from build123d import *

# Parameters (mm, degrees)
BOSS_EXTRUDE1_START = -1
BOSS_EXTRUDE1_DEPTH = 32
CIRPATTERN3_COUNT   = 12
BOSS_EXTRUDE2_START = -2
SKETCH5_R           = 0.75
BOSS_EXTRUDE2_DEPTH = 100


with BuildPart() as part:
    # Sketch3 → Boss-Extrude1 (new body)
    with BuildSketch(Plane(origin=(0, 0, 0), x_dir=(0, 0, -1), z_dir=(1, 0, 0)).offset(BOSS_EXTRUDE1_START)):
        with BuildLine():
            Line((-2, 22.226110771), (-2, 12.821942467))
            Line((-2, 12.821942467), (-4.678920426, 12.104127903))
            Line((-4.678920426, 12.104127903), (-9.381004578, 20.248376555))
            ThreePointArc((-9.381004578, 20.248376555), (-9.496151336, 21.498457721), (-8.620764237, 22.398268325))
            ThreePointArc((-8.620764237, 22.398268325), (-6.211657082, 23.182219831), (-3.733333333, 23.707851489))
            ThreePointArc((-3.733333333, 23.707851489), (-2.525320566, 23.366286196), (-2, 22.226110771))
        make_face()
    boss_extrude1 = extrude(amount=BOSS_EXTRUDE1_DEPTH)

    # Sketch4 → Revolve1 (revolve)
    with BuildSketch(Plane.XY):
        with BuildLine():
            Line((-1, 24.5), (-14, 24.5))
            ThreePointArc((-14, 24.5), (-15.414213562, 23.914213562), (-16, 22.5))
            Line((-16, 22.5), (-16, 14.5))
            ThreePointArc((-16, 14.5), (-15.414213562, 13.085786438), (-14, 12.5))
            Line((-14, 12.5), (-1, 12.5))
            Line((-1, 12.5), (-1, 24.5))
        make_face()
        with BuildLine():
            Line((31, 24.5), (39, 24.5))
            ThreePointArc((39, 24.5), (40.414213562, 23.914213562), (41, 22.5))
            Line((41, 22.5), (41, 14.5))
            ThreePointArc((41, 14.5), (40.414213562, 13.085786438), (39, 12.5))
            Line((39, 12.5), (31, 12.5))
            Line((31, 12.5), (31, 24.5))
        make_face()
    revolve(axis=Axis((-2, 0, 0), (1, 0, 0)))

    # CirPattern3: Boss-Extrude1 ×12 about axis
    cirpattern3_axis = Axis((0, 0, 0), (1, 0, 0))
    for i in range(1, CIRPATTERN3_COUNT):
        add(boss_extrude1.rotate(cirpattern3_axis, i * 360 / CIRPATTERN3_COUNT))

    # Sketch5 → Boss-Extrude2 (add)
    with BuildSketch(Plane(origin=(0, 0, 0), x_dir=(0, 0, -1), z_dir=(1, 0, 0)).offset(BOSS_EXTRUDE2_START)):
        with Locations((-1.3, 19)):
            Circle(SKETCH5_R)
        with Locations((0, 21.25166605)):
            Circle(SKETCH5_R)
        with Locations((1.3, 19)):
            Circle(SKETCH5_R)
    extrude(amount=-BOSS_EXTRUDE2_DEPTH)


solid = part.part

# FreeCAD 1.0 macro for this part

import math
import FreeCAD as App
import Part
import Sketcher
from FreeCAD import Vector
Q = App.Units.Quantity

doc = App.newDocument("Part")
body = doc.addObject("PartDesign::Body", "Body")

# Sketch on YZ plane
sketch1 = body.newObject("Sketcher::SketchObject", "Sketch")
sketch1.AttachmentSupport = (doc.getObject("YZ_Plane"), [""])
sketch1.MapMode = "FlatFace"
sketch1.AttachmentOffset = App.Placement(Vector(0, 0, -1), App.Rotation())
sketch1.addGeometry(Part.LineSegment(Vector(12.821942, 2, 0), Vector(22.226111, 2, 0)), False)
sketch1.addGeometry(Part.ArcOfCircle(Part.Circle(Vector(22.226111, 3.5, 0), Vector(0, 0, 1), 1.5), math.radians(-90), math.radians(8.949018)), False)
sketch1.addGeometry(Part.ArcOfCircle(Part.Circle(Vector(0, 0, 0), Vector(0, 0, 1), 24), math.radians(8.949018), math.radians(21.050982)), False)
sketch1.addGeometry(Part.ArcOfCircle(Part.Circle(Vector(20.998377, 8.081966, 0), Vector(0, 0, 1), 1.5), math.radians(21.050982), math.radians(120)), False)
sketch1.addGeometry(Part.LineSegment(Vector(20.248377, 9.381005, 0), Vector(12.104128, 4.67892, 0)), False)
sketch1.addGeometry(Part.LineSegment(Vector(12.104128, 4.67892, 0), Vector(12.821942, 2, 0)), False)
sketch1.addConstraint(Sketcher.Constraint("Tangent", 0, 2, 1, 1))
sketch1.addConstraint(Sketcher.Constraint("Tangent", 1, 2, 2, 1))
sketch1.addConstraint(Sketcher.Constraint("Tangent", 2, 2, 3, 1))
sketch1.addConstraint(Sketcher.Constraint("Tangent", 3, 2, 4, 1))
sketch1.addConstraint(Sketcher.Constraint("Coincident", 4, 2, 5, 1))
sketch1.addConstraint(Sketcher.Constraint("Coincident", 5, 2, 0, 1))
sketch1.addConstraint(Sketcher.Constraint("Horizontal", 0))
sketch1.addConstraint(Sketcher.Constraint("Coincident", 2, 3, -1, 1))
sketch1.addConstraint(Sketcher.Constraint("Equal", 1, 3))
sketch1.addConstraint(Sketcher.Constraint("Radius", 2, Q("24 mm")))
sketch1.addConstraint(Sketcher.Constraint("Radius", 1, Q("1.5 mm")))
sketch1.addConstraint(Sketcher.Constraint("Angle", 4, Q("-150 deg")))
sketch1.addConstraint(Sketcher.Constraint("Angle", 5, Q("-75 deg")))
sketch1.addConstraint(Sketcher.Constraint("DistanceY", -1, 1, 0, 2, Q("2 mm")))
sketch1.addConstraint(Sketcher.Constraint("DistanceX", 0, 1, 0, 2, Q("9.404168 mm")))
sketch1.addConstraint(Sketcher.Constraint("Distance", 4, Q("9.404168 mm")))
pad1 = body.newObject("PartDesign::Pad", "Pad")
pad1.Profile = sketch1
pad1.Length = 32

# Sketch on XY plane
sketch2 = body.newObject("Sketcher::SketchObject", "Sketch001")
sketch2.AttachmentSupport = (doc.getObject("XY_Plane"), [""])
sketch2.MapMode = "FlatFace"
sketch2.addGeometry(Part.LineSegment(Vector(-1, 24.5, 0), Vector(-14, 24.5, 0)), False)
sketch2.addGeometry(Part.ArcOfCircle(Part.Circle(Vector(-14, 22.5, 0), Vector(0, 0, 1), 2), math.radians(90), math.radians(180)), False)
sketch2.addGeometry(Part.LineSegment(Vector(-16, 22.5, 0), Vector(-16, 14.5, 0)), False)
sketch2.addGeometry(Part.ArcOfCircle(Part.Circle(Vector(-14, 14.5, 0), Vector(0, 0, 1), 2), math.radians(-180), math.radians(-90)), False)
sketch2.addGeometry(Part.LineSegment(Vector(-14, 12.5, 0), Vector(-1, 12.5, 0)), False)
sketch2.addGeometry(Part.LineSegment(Vector(-1, 12.5, 0), Vector(-1, 24.5, 0)), False)
sketch2.addGeometry(Part.LineSegment(Vector(39, 24.5, 0), Vector(31, 24.5, 0)), False)
sketch2.addGeometry(Part.LineSegment(Vector(31, 24.5, 0), Vector(31, 12.5, 0)), False)
sketch2.addGeometry(Part.LineSegment(Vector(31, 12.5, 0), Vector(39, 12.5, 0)), False)
sketch2.addGeometry(Part.ArcOfCircle(Part.Circle(Vector(39, 14.5, 0), Vector(0, 0, 1), 2), math.radians(-90), math.radians(0)), False)
sketch2.addGeometry(Part.LineSegment(Vector(41, 14.5, 0), Vector(41, 22.5, 0)), False)
sketch2.addGeometry(Part.ArcOfCircle(Part.Circle(Vector(39, 22.5, 0), Vector(0, 0, 1), 2), math.radians(0), math.radians(90)), False)
sketch2.addConstraint(Sketcher.Constraint("Tangent", 0, 2, 1, 1))
sketch2.addConstraint(Sketcher.Constraint("Tangent", 1, 2, 2, 1))
sketch2.addConstraint(Sketcher.Constraint("Tangent", 2, 2, 3, 1))
sketch2.addConstraint(Sketcher.Constraint("Tangent", 3, 2, 4, 1))
sketch2.addConstraint(Sketcher.Constraint("Coincident", 4, 2, 5, 1))
sketch2.addConstraint(Sketcher.Constraint("Coincident", 5, 2, 0, 1))
sketch2.addConstraint(Sketcher.Constraint("Coincident", 6, 2, 7, 1))
sketch2.addConstraint(Sketcher.Constraint("Coincident", 7, 2, 8, 1))
sketch2.addConstraint(Sketcher.Constraint("Tangent", 8, 2, 9, 1))
sketch2.addConstraint(Sketcher.Constraint("Tangent", 9, 2, 10, 1))
sketch2.addConstraint(Sketcher.Constraint("Tangent", 10, 2, 11, 1))
sketch2.addConstraint(Sketcher.Constraint("Tangent", 11, 2, 6, 1))
sketch2.addConstraint(Sketcher.Constraint("Horizontal", 0))
sketch2.addConstraint(Sketcher.Constraint("Vertical", 2))
sketch2.addConstraint(Sketcher.Constraint("Horizontal", 4))
sketch2.addConstraint(Sketcher.Constraint("Vertical", 5))
sketch2.addConstraint(Sketcher.Constraint("Horizontal", 6))
sketch2.addConstraint(Sketcher.Constraint("Vertical", 7))
sketch2.addConstraint(Sketcher.Constraint("Horizontal", 8))
sketch2.addConstraint(Sketcher.Constraint("Vertical", 10))
sketch2.addConstraint(Sketcher.Constraint("Equal", 1, 3))
sketch2.addConstraint(Sketcher.Constraint("Equal", 3, 9))
sketch2.addConstraint(Sketcher.Constraint("Equal", 9, 11))
sketch2.addConstraint(Sketcher.Constraint("Horizontal", 3, 3, 9, 3))
sketch2.addConstraint(Sketcher.Constraint("Horizontal", 1, 3, 11, 3))
sketch2.addConstraint(Sketcher.Constraint("Equal", 8, 2))
sketch2.addConstraint(Sketcher.Constraint("Radius", 1, Q("2 mm")))
sketch2.addConstraint(Sketcher.Constraint("DistanceX", 0, 2, 0, 1, Q("13 mm")))
sketch2.addConstraint(Sketcher.Constraint("DistanceX", 6, 2, 6, 1, Q("8 mm")))
sketch2.addConstraint(Sketcher.Constraint("DistanceX", 1, 3, -1, 1, Q("14 mm")))
sketch2.addConstraint(Sketcher.Constraint("DistanceX", -1, 1, 9, 3, Q("39 mm")))
sketch2.addConstraint(Sketcher.Constraint("DistanceY", -1, 1, 1, 3, Q("22.5 mm")))
revolution = body.newObject("PartDesign::Revolution", "Revolution")
revolution.Profile = sketch2
revolution.ReferenceAxis = (sketch2, ["H_Axis"])
revolution.Angle = 360
doc.recompute()

polarpattern = body.newObject("PartDesign::PolarPattern", "PolarPattern")
polarpattern.Originals = [pad1]
polarpattern.Axis = (doc.getObject("X_Axis"), [""])
polarpattern.Angle = 360
polarpattern.Occurrences = 12
body.Tip = polarpattern

# Sketch on YZ plane
sketch3 = body.newObject("Sketcher::SketchObject", "Sketch002")
sketch3.AttachmentSupport = (doc.getObject("YZ_Plane"), [""])
sketch3.MapMode = "FlatFace"
sketch3.AttachmentOffset = App.Placement(Vector(0, 0, -2), App.Rotation())
sketch3.addGeometry(Part.Circle(Vector(19, 1.3, 0), Vector(0, 0, 1), 0.75), False)
sketch3.addGeometry(Part.Circle(Vector(21.251666, 0, 0), Vector(0, 0, 1), 0.75), False)
sketch3.addGeometry(Part.Circle(Vector(19, -1.3, 0), Vector(0, 0, 1), 0.75), False)
sketch3.addConstraint(Sketcher.Constraint("Equal", 0, 1))
sketch3.addConstraint(Sketcher.Constraint("Equal", 1, 2))
sketch3.addConstraint(Sketcher.Constraint("Symmetric", 0, 3, 2, 3, -1))
sketch3.addConstraint(Sketcher.Constraint("PointOnObject", 1, 3, -1))
sketch3.addConstraint(Sketcher.Constraint("Diameter", 0, Q("1.5 mm")))
sketch3.addConstraint(Sketcher.Constraint("DistanceX", -1, 1, 0, 3, Q("19 mm")))
sketch3.addConstraint(Sketcher.Constraint("DistanceY", -1, 1, 0, 3, Q("1.3 mm")))
sketch3.addConstraint(Sketcher.Constraint("DistanceX", -1, 1, 1, 3, Q("21.251666 mm")))
pad2 = body.newObject("PartDesign::Pad", "Pad001")
pad2.Profile = sketch3
pad2.Length = 100
pad2.Reversed = True

doc.recompute()
